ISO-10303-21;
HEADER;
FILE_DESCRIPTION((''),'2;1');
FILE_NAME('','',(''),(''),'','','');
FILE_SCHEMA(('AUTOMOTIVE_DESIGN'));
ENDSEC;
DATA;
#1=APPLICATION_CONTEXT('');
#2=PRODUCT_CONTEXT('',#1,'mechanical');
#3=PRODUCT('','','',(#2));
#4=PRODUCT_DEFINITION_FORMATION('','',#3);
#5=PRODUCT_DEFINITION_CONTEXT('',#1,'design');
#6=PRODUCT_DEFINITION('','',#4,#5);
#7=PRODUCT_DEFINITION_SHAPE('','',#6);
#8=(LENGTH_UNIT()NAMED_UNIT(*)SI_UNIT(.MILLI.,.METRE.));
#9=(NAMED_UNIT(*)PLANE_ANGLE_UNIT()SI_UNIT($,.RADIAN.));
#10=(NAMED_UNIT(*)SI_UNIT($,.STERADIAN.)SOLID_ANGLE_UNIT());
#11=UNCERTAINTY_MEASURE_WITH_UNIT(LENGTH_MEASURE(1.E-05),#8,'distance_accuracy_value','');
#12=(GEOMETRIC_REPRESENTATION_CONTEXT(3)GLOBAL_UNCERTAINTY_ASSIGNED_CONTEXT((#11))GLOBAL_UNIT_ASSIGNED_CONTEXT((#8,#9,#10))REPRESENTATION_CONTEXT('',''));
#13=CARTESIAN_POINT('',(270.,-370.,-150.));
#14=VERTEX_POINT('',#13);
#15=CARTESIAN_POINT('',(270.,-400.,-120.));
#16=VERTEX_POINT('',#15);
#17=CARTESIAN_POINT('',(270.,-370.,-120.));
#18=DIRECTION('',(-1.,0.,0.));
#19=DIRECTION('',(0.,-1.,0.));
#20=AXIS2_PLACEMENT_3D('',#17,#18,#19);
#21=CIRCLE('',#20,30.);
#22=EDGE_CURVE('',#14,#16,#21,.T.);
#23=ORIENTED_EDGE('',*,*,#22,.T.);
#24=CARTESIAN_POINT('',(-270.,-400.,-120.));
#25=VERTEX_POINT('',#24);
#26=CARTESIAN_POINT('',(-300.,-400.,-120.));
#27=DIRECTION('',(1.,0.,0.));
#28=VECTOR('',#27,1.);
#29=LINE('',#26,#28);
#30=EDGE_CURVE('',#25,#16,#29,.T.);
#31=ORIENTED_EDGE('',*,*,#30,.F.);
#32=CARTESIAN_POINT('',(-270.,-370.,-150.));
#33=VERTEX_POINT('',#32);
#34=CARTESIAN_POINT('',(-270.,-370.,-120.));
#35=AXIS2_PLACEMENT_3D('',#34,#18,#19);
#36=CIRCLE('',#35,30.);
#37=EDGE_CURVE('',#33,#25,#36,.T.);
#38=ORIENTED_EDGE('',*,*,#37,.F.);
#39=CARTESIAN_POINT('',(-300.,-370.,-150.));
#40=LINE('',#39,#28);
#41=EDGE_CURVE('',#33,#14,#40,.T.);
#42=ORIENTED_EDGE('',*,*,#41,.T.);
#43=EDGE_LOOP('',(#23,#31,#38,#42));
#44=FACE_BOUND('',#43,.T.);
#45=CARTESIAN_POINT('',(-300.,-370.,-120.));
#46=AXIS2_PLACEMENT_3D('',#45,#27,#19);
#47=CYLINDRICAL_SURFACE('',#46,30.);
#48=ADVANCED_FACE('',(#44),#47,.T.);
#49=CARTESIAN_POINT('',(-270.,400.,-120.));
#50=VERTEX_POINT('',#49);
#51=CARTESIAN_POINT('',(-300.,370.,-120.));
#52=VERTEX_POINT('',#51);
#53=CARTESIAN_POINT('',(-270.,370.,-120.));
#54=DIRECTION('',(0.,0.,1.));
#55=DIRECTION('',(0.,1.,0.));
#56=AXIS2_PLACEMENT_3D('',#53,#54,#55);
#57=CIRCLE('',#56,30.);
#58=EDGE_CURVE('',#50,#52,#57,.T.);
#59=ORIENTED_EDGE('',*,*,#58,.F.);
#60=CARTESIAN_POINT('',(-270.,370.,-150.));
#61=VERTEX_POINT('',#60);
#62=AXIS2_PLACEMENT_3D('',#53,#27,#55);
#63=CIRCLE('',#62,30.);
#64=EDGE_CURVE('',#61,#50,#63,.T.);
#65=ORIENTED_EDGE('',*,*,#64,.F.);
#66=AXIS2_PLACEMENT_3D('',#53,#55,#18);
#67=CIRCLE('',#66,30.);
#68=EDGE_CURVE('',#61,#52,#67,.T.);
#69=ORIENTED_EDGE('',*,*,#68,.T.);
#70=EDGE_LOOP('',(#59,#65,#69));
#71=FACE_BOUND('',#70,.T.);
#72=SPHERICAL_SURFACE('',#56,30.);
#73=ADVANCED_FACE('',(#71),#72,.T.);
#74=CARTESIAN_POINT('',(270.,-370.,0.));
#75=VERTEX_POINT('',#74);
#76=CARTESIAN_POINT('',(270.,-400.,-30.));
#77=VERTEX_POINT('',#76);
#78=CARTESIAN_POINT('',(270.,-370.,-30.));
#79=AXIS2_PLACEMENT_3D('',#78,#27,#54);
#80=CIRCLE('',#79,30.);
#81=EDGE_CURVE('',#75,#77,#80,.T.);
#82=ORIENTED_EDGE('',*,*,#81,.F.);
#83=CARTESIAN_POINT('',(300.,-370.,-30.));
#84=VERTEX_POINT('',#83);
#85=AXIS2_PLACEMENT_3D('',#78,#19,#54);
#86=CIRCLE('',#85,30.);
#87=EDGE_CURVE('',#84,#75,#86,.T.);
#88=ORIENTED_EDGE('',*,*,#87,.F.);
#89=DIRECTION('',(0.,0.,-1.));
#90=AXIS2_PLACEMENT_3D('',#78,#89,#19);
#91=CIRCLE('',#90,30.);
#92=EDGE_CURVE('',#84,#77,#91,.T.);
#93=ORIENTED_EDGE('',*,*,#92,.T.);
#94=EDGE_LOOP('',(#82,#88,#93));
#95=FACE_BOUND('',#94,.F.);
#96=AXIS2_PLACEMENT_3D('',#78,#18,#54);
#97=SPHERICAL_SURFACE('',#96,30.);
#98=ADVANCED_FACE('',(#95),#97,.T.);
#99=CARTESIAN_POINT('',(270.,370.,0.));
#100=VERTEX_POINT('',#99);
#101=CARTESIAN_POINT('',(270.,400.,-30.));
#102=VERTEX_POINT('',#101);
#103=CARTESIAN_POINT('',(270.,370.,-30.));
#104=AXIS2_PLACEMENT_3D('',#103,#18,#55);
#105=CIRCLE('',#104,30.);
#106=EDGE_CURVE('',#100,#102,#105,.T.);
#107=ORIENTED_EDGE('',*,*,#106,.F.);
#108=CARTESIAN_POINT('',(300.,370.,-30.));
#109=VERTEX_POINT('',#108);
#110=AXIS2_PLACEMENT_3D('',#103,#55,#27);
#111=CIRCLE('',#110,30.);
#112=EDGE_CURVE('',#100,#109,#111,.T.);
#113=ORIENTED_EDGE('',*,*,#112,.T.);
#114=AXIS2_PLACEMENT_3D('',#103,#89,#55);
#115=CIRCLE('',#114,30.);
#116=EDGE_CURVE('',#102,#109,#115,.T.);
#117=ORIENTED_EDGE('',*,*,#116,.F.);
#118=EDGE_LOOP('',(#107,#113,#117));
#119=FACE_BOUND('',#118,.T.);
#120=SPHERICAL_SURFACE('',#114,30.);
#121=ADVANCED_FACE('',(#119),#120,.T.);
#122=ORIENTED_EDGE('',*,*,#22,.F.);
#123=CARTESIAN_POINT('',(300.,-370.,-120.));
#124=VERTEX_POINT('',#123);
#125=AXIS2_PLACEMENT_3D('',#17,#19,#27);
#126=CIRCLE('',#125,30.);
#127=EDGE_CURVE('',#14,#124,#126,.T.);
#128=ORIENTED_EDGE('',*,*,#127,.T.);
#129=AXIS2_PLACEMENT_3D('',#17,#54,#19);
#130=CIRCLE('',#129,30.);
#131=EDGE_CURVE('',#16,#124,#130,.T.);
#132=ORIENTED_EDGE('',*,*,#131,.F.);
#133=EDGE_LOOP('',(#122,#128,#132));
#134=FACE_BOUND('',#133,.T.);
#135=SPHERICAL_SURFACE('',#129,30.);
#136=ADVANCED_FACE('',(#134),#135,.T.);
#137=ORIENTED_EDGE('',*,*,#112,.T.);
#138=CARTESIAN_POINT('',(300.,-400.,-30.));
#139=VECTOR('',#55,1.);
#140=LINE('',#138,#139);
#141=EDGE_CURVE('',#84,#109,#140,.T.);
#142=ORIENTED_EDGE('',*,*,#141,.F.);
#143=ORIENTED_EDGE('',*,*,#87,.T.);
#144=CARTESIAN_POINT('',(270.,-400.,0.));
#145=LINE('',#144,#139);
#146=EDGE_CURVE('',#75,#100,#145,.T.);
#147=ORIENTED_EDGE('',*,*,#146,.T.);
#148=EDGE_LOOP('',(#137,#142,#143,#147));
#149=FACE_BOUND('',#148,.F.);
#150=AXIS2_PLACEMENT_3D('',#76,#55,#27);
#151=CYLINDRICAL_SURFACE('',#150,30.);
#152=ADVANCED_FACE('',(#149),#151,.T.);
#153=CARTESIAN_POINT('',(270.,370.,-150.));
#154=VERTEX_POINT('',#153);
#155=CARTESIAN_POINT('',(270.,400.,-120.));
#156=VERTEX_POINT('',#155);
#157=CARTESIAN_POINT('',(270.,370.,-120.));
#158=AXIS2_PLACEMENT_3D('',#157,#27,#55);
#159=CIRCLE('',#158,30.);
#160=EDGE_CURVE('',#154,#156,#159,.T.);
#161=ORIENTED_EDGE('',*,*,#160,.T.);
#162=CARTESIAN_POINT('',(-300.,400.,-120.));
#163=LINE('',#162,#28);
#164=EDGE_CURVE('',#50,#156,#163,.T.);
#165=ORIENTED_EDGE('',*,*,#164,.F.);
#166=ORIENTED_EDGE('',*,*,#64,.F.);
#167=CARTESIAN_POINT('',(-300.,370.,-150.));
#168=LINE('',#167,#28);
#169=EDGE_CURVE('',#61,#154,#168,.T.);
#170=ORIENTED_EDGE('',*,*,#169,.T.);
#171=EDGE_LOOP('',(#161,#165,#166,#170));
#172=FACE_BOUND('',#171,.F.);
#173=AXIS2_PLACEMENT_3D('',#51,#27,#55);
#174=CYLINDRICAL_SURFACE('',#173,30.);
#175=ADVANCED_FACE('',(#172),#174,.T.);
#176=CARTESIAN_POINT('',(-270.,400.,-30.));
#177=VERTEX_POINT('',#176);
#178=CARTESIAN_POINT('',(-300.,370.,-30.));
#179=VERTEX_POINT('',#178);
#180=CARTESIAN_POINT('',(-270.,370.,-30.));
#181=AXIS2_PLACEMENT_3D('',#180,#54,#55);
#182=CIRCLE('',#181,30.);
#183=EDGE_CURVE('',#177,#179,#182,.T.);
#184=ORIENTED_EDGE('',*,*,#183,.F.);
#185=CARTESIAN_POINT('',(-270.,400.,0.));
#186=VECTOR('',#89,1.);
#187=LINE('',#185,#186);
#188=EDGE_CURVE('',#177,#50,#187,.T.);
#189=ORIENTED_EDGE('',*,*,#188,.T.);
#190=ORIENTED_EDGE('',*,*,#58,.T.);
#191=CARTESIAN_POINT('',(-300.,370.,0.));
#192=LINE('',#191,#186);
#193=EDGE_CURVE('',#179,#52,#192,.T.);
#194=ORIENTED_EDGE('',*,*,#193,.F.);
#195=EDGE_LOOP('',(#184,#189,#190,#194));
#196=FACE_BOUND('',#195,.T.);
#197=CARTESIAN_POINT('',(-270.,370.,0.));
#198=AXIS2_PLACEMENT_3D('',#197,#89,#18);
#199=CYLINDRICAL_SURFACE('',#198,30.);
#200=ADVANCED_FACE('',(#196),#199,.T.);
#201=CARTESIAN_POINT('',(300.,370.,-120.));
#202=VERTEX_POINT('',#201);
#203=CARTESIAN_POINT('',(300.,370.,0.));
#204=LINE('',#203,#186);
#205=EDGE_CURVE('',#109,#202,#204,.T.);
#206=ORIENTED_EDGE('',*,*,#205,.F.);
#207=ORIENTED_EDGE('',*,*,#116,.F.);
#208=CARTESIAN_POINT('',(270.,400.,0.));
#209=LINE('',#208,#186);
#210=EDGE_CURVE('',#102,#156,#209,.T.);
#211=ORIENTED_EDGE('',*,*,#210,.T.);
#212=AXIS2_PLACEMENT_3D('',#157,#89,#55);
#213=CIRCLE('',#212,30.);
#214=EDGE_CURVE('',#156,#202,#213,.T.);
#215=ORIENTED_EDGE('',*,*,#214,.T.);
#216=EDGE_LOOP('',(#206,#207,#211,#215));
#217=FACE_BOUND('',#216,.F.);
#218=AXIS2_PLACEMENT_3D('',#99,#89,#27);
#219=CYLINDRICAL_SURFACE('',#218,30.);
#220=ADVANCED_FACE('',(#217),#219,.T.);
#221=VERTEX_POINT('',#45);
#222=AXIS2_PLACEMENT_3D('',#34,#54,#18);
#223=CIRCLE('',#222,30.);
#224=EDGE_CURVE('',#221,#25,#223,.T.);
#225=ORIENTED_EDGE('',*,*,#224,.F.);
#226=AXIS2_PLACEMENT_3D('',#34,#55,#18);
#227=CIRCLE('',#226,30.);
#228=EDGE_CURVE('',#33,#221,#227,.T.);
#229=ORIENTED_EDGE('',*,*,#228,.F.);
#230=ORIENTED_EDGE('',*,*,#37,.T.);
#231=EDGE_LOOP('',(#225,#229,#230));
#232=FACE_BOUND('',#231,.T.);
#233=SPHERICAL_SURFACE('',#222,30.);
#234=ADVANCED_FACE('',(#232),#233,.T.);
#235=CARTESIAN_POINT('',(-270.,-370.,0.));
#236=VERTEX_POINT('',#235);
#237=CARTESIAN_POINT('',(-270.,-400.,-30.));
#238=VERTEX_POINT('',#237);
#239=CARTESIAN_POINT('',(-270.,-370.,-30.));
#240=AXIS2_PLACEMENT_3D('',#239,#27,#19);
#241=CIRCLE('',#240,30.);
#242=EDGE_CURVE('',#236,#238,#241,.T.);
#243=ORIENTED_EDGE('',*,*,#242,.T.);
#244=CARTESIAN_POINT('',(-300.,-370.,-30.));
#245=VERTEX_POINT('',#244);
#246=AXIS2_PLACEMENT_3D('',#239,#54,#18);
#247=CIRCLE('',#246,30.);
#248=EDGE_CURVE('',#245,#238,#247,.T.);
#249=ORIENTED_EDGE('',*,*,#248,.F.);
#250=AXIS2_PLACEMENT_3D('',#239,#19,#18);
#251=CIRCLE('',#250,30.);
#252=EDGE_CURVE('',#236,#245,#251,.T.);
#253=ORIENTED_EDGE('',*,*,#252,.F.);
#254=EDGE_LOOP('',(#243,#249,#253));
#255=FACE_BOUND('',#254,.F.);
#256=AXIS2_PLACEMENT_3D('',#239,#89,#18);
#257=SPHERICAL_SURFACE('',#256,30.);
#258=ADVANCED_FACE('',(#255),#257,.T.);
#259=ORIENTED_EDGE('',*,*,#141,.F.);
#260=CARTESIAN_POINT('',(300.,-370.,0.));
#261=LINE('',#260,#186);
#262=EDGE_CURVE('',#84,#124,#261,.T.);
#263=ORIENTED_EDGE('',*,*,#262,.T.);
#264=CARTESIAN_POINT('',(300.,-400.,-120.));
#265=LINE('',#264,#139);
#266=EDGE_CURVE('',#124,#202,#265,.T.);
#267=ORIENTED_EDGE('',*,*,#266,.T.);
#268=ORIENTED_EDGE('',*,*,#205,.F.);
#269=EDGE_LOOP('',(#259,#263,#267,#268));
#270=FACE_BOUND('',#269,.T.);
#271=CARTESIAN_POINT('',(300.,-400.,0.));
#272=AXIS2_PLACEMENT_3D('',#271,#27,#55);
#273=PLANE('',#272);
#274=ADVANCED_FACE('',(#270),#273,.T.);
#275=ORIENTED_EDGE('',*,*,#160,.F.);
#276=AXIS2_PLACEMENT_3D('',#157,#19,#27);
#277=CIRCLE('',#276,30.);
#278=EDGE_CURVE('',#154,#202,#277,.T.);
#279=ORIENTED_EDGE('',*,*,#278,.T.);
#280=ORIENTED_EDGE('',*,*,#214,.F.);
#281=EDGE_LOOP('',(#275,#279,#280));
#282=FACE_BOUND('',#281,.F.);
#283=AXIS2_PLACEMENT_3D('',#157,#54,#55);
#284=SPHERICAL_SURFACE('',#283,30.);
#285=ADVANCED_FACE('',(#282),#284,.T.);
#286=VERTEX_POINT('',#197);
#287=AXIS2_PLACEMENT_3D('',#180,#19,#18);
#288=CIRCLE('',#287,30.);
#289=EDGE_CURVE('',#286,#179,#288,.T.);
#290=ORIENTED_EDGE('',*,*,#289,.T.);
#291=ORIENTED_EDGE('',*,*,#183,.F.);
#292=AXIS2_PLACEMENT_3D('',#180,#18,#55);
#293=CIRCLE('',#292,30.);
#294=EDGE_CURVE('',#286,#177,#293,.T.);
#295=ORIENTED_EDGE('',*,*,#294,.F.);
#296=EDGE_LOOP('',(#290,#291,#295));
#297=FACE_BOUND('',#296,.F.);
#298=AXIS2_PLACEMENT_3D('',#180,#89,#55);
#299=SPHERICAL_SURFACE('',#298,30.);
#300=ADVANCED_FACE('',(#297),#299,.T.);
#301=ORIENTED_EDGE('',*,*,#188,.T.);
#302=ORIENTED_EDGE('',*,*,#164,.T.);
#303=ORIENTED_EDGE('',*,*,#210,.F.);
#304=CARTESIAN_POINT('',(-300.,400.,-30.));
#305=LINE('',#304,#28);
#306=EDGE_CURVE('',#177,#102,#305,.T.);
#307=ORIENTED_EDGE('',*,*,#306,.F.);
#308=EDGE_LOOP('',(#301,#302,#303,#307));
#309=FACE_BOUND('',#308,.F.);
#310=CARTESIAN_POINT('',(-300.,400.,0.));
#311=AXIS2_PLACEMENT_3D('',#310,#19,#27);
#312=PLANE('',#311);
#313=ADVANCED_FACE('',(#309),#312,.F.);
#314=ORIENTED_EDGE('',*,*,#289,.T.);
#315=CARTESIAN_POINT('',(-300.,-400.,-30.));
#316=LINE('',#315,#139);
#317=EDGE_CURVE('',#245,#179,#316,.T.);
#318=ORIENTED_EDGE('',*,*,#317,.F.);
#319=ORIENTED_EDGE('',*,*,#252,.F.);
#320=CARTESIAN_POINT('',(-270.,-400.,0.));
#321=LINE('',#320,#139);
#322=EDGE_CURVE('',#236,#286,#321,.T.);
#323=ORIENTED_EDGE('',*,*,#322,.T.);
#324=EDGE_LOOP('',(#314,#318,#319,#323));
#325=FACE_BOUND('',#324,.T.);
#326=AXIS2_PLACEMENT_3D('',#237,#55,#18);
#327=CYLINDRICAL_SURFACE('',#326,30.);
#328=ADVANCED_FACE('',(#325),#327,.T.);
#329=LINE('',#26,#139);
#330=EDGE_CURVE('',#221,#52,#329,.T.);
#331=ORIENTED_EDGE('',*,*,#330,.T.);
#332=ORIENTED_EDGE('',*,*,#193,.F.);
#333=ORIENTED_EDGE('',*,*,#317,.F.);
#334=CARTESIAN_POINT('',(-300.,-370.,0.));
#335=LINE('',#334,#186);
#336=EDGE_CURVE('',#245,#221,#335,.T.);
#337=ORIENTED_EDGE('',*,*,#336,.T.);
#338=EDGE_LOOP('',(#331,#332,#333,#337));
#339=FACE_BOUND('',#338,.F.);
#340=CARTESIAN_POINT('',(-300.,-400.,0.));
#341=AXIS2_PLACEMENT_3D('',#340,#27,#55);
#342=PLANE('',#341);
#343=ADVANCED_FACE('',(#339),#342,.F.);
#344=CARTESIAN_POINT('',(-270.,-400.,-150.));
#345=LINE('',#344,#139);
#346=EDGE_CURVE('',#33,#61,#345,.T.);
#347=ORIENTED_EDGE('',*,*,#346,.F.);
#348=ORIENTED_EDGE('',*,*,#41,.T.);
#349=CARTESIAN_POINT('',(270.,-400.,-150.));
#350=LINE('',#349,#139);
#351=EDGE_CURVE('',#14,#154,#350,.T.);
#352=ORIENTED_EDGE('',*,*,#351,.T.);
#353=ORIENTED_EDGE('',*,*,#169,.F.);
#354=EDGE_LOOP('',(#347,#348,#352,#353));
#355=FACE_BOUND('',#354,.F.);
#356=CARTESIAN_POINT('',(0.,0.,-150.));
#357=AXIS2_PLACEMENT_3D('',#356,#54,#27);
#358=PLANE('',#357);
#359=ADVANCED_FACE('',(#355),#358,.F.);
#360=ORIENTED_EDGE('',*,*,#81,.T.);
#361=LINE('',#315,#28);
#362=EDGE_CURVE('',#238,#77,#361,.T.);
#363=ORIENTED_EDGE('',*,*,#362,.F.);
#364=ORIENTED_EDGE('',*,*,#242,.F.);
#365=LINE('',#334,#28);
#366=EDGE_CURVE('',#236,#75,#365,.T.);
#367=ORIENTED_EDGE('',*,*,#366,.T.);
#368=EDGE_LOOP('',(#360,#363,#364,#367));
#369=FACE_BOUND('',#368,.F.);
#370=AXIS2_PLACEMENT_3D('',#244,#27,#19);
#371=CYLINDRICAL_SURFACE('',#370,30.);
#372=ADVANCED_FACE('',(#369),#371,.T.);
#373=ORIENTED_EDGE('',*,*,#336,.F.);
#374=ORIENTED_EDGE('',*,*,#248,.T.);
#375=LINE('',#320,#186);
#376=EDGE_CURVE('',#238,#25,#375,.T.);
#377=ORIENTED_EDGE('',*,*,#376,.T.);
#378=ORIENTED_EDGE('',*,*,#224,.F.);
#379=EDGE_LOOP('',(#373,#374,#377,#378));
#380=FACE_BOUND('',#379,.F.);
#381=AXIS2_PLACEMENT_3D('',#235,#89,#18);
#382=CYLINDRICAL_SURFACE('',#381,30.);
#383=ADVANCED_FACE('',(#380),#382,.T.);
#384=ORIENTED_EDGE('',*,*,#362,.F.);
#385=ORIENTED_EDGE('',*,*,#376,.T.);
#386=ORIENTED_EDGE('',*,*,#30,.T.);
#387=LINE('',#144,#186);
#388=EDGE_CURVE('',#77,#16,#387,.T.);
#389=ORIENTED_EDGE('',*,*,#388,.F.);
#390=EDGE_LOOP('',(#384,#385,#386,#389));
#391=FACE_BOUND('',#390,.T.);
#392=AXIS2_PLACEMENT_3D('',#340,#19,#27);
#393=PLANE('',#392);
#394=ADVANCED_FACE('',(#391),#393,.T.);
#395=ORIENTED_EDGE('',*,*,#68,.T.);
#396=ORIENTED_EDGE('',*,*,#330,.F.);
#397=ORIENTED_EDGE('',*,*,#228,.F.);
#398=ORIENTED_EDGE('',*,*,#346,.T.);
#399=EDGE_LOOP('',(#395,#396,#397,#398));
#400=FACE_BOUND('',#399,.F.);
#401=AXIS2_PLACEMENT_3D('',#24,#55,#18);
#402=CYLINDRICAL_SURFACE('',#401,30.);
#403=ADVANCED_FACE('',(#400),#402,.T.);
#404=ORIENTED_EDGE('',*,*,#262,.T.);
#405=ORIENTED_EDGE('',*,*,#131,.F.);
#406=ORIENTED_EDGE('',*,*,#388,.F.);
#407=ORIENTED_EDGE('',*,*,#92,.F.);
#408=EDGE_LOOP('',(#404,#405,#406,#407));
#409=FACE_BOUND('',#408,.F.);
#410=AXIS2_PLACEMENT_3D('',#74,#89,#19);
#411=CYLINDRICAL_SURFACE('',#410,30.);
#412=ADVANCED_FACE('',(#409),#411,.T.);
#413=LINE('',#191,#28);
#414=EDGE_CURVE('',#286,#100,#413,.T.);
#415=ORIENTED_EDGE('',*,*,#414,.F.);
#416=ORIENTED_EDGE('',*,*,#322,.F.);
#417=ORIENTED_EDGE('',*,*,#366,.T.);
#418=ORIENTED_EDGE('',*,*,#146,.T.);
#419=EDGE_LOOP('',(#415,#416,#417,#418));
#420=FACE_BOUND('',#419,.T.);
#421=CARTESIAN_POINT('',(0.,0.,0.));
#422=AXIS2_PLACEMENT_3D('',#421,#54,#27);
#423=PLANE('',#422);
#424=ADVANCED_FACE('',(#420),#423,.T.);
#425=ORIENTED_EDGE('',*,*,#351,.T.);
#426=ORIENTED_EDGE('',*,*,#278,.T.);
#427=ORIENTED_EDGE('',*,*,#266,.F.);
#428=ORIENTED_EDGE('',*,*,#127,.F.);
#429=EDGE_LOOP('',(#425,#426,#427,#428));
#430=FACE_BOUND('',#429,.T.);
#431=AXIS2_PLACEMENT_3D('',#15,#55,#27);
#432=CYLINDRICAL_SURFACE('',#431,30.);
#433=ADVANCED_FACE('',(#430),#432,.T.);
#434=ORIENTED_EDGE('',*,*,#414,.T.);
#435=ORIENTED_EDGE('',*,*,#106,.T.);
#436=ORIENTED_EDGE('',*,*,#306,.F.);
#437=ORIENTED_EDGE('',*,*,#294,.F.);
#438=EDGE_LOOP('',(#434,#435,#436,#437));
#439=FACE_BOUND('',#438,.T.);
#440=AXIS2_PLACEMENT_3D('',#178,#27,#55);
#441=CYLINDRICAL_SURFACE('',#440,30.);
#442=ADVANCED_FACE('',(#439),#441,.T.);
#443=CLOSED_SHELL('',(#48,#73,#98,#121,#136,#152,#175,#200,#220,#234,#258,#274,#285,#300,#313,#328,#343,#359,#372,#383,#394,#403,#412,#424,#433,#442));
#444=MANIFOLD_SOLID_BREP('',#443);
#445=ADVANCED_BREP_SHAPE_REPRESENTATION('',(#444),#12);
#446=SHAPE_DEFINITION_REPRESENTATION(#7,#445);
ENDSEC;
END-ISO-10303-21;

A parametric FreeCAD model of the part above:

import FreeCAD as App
import Part
import Sketcher

doc = App.newDocument("Part")
params = doc.addObject("Spreadsheet::Sheet", "Params")
for row, (alias, value) in enumerate([
    ("sketch1_width", "600 mm"),
    ("sketch1_height", "800 mm"),
    ("pad1_length", "150 mm"),
    ("fillet_radius", "30 mm"),
], start=1):
    params.set(f"A{row}", alias)
    params.set(f"B{row}", "=" + value)
    params.setAlias(f"B{row}", alias)

body = doc.addObject("PartDesign::Body", "Body")

# Sketch on XY plane
sketch1 = doc.addObject("Sketcher::SketchObject", "Sketch")
body.addObject(sketch1)
sketch1.AttachmentSupport = (doc.XY_Plane, [""])
sketch1.MapMode = "FlatFace"
sketch1.addGeometry(Part.LineSegment(App.Vector(-300, 400, 0), App.Vector(-300, -400, 0)), False)
sketch1.addGeometry(Part.LineSegment(App.Vector(-300, -400, 0), App.Vector(300, -400, 0)), False)
sketch1.addGeometry(Part.LineSegment(App.Vector(300, -400, 0), App.Vector(300, 400, 0)), False)
sketch1.addGeometry(Part.LineSegment(App.Vector(300, 400, 0), App.Vector(-300, 400, 0)), False)
sketch1.addConstraint(Sketcher.Constraint("Coincident", 0, 2, 1, 1))
sketch1.addConstraint(Sketcher.Constraint("Coincident", 1, 2, 2, 1))
sketch1.addConstraint(Sketcher.Constraint("Coincident", 2, 2, 3, 1))
sketch1.addConstraint(Sketcher.Constraint("Coincident", 3, 2, 0, 1))
sketch1.addConstraint(Sketcher.Constraint("Vertical", 0))
sketch1.addConstraint(Sketcher.Constraint("Horizontal", 1))
sketch1.addConstraint(Sketcher.Constraint("Vertical", 2))
sketch1.addConstraint(Sketcher.Constraint("Horizontal", 3))
sketch1.addConstraint(Sketcher.Constraint("Symmetric", 0, 2, 2, 2, -1, 1))
sketch1.addConstraint(Sketcher.Constraint("DistanceX", 1, 1, 1, 2, 600.0))
sketch1.addConstraint(Sketcher.Constraint("DistanceY", 0, 2, 0, 1, 800.0))
sketch1.setExpression("Constraints[9]", "Params.sketch1_width")
sketch1.setExpression("Constraints[10]", "Params.sketch1_height")
pad1 = doc.addObject("PartDesign::Pad", "Pad")
body.addObject(pad1)
pad1.Profile = sketch1
pad1.setExpression("Length", "Params.pad1_length")
pad1.Reversed = True
doc.recompute()

fillet = doc.addObject("PartDesign::Fillet", "Fillet")
body.addObject(fillet)
fillet.Base = (pad1, ["Edge1"])
fillet.UseAllEdges = True
fillet.setExpression("Radius", "Params.fillet_radius")

doc.recompute()
